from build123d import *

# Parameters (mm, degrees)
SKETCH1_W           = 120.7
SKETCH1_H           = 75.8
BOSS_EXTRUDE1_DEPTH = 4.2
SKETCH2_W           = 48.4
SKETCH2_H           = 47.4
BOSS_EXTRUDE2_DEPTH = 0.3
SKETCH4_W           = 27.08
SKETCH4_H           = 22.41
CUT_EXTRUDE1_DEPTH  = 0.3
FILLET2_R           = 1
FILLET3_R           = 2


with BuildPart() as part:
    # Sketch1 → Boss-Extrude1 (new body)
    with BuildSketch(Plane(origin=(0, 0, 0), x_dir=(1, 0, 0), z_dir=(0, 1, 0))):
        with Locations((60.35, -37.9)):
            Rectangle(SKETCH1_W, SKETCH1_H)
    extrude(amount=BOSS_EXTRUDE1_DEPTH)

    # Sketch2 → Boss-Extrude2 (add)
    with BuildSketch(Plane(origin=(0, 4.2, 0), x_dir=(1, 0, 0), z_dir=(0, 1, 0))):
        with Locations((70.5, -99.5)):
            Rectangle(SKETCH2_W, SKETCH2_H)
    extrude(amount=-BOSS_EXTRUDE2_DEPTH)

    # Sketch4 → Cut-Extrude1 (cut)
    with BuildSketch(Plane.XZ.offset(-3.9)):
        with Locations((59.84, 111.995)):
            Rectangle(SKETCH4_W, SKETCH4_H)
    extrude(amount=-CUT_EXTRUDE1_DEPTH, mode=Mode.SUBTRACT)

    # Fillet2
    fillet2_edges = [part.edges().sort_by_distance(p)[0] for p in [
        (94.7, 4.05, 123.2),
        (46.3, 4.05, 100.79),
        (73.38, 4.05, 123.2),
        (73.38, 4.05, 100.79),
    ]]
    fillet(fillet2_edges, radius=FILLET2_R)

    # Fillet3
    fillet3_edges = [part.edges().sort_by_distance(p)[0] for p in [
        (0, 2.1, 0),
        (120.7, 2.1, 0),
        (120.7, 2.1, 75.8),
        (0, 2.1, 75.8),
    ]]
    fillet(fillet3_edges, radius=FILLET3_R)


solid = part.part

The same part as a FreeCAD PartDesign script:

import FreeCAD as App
import Part
import Sketcher
from FreeCAD import Vector


def edges_at(feature, points):
    """Names of the edges that pass closest to the given points."""
    edges = feature.Shape.Edges
    near = lambda p: min(range(len(edges)), key=lambda i: edges[i].distToShape(Part.Vertex(*p))[0])
    return sorted({f"Edge{near(p) + 1}" for p in points})


def add_polygon(sketch, points):
    """Adds a closed chain of lines whose ends are joined by coincident constraints."""
    first, n = sketch.GeometryCount, len(points)
    for a, b in zip(points, points[1:] + points[:1]):
        sketch.addGeometry(Part.LineSegment(App.Vector(*a, 0), App.Vector(*b, 0)), False)
    for i in range(n):
        sketch.addConstraint(Sketcher.Constraint("Coincident", first + i, 2, first + (i + 1) % n, 1))

doc = App.newDocument("Part")
body = doc.addObject("PartDesign::Body", "Body")

# Sketch on XZ plane
sketch1 = doc.addObject("Sketcher::SketchObject", "Sketch")
body.addObject(sketch1)
sketch1.AttachmentSupport = (doc.XZ_Plane, [""])
sketch1.MapMode = "FlatFace"
add_polygon(sketch1, [(0, 0), (0, 75.8), (120.7, 75.8), (120.7, 0)])  # lines 0-3
sketch1.addConstraint([
    Sketcher.Constraint("Vertical", 0),
    Sketcher.Constraint("Horizontal", 1),
    Sketcher.Constraint("Vertical", 2),
    Sketcher.Constraint("Horizontal", 3),
    Sketcher.Constraint("Coincident", 3, 2, -1, 1),
    Sketcher.Constraint("DistanceX", 1, 1, 1, 2, 120.7),
    Sketcher.Constraint("DistanceY", 0, 1, 0, 2, 75.8),
])
pad1 = doc.addObject("PartDesign::Pad", "Pad")
body.addObject(pad1)
pad1.Profile = sketch1
pad1.Length = 4.2
pad1.Reversed = True

# Sketch on XZ plane
sketch2 = doc.addObject("Sketcher::SketchObject", "Sketch001")
body.addObject(sketch2)
sketch2.AttachmentSupport = (doc.XZ_Plane, [""])
sketch2.MapMode = "FlatFace"
sketch2.AttachmentOffset = App.Placement(Vector(0, 0, -4.2), App.Rotation())
add_polygon(sketch2, [(46.3, 75.8), (46.3, 123.2), (94.7, 123.2), (94.7, 75.8)])  # lines 0-3
sketch2.addConstraint([
    Sketcher.Constraint("Vertical", 0),
    Sketcher.Constraint("Horizontal", 1),
    Sketcher.Constraint("Vertical", 2),
    Sketcher.Constraint("Horizontal", 3),
    Sketcher.Constraint("DistanceX", 1, 1, 1, 2, 48.4),
    Sketcher.Constraint("DistanceY", 0, 1, 0, 2, 47.4),
    Sketcher.Constraint("DistanceX", -1, 1, 0, 2, 46.3),
    Sketcher.Constraint("DistanceY", -1, 1, 0, 2, 123.2),
])
pad2 = doc.addObject("PartDesign::Pad", "Pad001")
body.addObject(pad2)
pad2.Profile = sketch2
pad2.Length = 0.3

# Sketch on XZ plane
sketch3 = doc.addObject("Sketcher::SketchObject", "Sketch002")
body.addObject(sketch3)
sketch3.AttachmentSupport = (doc.XZ_Plane, [""])
sketch3.MapMode = "FlatFace"
sketch3.AttachmentOffset = App.Placement(Vector(0, 0, -3.9), App.Rotation())
add_polygon(sketch3, [(46.3, 123.2), (46.3, 100.79), (73.38, 100.79), (73.38, 123.2)])  # lines 0-3
sketch3.addConstraint([
    Sketcher.Constraint("Vertical", 0),
    Sketcher.Constraint("Horizontal", 1),
    Sketcher.Constraint("Vertical", 2),
    Sketcher.Constraint("Horizontal", 3),
    Sketcher.Constraint("DistanceX", 1, 1, 1, 2, 27.08),
    Sketcher.Constraint("DistanceY", 0, 2, 0, 1, 22.41),
    Sketcher.Constraint("DistanceX", -1, 1, 0, 2, 46.3),
    Sketcher.Constraint("DistanceY", -1, 1, 2, 2, 123.2),
])
pocket1 = doc.addObject("PartDesign::Pocket", "Pocket")
body.addObject(pocket1)
pocket1.Profile = sketch3
pocket1.Length = 0.3
doc.recompute()

fillet = doc.addObject("PartDesign::Fillet", "Fillet")
body.addObject(fillet)
fillet.Base = (pocket1, edges_at(pocket1, [
    (94.7, 4.05, 123.2),
    (46.3, 4.05, 100.79),
    (73.38, 4.05, 123.2),
    (73.38, 4.05, 100.79),
]))
fillet.Radius = 1
doc.recompute()

fillet2 = doc.addObject("PartDesign::Fillet", "Fillet001")
body.addObject(fillet2)
fillet2.Base = (fillet, edges_at(fillet, [
    (0, 2.1, 0),
    (120.7, 2.1, 0),
    (120.7, 2.1, 75.8),
    (0, 2.1, 75.8),
]))
fillet2.Radius = 2

doc.recompute()
